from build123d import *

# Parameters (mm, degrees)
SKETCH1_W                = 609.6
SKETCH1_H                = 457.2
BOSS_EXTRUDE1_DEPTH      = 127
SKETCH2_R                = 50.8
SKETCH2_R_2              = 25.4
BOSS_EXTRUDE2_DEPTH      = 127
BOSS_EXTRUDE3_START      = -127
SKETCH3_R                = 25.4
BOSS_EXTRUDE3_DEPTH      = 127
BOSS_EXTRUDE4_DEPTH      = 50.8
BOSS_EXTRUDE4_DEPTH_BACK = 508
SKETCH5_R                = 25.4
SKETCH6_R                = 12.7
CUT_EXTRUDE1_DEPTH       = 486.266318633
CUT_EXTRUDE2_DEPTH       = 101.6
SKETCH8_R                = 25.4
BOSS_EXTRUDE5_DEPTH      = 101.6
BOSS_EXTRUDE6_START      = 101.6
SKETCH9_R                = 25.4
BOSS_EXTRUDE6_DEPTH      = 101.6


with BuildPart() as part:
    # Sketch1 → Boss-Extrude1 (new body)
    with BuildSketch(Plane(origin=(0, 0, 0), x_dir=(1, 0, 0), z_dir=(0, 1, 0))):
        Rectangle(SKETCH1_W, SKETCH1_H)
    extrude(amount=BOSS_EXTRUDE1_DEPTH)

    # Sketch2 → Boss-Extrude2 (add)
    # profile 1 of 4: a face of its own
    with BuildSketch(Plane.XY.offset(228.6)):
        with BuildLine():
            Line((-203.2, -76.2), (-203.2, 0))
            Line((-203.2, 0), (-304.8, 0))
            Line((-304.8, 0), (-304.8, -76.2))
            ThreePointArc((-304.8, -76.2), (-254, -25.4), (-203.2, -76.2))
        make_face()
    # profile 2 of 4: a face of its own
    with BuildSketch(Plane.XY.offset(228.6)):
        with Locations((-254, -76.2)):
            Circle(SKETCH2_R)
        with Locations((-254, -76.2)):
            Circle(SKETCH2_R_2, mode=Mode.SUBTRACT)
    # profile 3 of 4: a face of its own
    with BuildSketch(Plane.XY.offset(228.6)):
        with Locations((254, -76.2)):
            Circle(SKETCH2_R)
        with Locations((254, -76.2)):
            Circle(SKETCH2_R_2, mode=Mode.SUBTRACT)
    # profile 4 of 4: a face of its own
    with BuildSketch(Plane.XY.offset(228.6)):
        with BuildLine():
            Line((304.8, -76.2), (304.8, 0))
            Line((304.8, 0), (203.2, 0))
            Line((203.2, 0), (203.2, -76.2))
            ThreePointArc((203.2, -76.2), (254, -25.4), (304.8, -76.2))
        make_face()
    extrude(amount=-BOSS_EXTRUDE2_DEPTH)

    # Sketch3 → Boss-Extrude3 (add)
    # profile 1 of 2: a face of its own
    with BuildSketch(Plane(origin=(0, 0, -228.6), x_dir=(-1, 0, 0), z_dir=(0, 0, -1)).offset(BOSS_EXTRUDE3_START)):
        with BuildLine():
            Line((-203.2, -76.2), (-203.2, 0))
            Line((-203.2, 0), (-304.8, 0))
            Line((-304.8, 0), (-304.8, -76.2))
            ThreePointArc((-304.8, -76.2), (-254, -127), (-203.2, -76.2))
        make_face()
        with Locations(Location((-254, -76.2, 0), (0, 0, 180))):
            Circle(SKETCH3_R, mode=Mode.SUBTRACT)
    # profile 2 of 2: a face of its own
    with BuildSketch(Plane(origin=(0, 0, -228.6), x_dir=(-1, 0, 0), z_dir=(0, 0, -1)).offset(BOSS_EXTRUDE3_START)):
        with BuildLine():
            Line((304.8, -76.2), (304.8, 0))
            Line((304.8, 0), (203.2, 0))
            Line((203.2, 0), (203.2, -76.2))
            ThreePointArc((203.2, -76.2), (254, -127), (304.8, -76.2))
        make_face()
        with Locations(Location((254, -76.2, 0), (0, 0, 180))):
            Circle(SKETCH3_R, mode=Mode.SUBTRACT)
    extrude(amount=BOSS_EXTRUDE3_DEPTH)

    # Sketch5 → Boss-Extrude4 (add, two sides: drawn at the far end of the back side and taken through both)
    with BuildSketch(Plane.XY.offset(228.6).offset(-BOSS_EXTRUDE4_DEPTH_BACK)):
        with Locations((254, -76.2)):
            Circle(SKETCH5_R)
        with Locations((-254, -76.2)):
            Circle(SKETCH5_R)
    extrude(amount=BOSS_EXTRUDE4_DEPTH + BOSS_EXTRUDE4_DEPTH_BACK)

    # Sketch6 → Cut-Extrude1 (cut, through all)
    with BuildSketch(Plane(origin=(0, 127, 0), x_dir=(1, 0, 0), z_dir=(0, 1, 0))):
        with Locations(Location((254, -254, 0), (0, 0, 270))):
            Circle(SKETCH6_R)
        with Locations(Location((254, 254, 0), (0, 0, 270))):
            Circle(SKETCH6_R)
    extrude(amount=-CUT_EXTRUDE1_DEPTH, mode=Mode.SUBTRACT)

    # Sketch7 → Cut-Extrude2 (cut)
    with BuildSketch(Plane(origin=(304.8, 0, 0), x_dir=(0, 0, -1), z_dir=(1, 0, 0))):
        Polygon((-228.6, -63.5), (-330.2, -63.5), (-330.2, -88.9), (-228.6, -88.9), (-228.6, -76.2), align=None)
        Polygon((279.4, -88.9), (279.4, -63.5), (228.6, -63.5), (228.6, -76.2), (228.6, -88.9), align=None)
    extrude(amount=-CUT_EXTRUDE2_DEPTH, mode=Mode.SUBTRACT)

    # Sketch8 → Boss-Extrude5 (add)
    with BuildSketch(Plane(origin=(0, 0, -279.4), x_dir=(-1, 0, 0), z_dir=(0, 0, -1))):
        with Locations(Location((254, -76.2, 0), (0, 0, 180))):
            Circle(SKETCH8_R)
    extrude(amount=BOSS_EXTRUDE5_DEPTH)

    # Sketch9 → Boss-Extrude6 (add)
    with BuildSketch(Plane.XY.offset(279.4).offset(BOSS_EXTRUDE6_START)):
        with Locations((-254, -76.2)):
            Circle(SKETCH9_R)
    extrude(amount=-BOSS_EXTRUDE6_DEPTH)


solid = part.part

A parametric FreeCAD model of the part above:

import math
import FreeCAD as App
import Part
import Sketcher
Q = App.Units.Quantity

doc = App.newDocument("Part")
body = doc.addObject("PartDesign::Body", "Body")

# Sketch on XZ plane
sketch1 = body.newObject("Sketcher::SketchObject", "Sketch")
sketch1.AttachmentSupport = (doc.getObject("XZ_Plane"), [""])
sketch1.MapMode = "FlatFace"
sketch1.addGeometry([
    Part.LineSegment(App.Vector(-305, -229, 0), App.Vector(-305, 229, 0)),
    Part.LineSegment(App.Vector(-305, 229, 0), App.Vector(305, 229, 0)),
    Part.LineSegment(App.Vector(305, 229, 0), App.Vector(305, -229, 0)),
    Part.LineSegment(App.Vector(305, -229, 0), App.Vector(-305, -229, 0)),
], False)
sketch1.addConstraint([
    Sketcher.Constraint("Coincident", 0, 2, 1, 1),
    Sketcher.Constraint("Coincident", 1, 2, 2, 1),
    Sketcher.Constraint("Coincident", 2, 2, 3, 1),
    Sketcher.Constraint("Coincident", 3, 2, 0, 1),
    Sketcher.Constraint("Vertical", 0),
    Sketcher.Constraint("Horizontal", 1),
    Sketcher.Constraint("Vertical", 2),
    Sketcher.Constraint("Horizontal", 3),
    Sketcher.Constraint("Symmetric", 0, 2, 2, 2, -1, 1),
    Sketcher.Constraint("DistanceX", 1, 1, 1, 2, Q("24 in")),
    Sketcher.Constraint("DistanceY", 0, 1, 0, 2, Q("18 in")),
])
pad1 = body.newObject("PartDesign::Pad", "Pad")
pad1.Profile = sketch1
pad1.Length = Q("5 in")
pad1.Reversed = True

# Sketch on XY plane
sketch2 = body.newObject("Sketcher::SketchObject", "Sketch001")
sketch2.AttachmentSupport = (doc.getObject("XY_Plane"), [""])
sketch2.MapMode = "FlatFace"
sketch2.AttachmentOffset = App.Placement(App.Vector(0, 0, 9 * 25.4), App.Rotation())
sketch2.addGeometry([
    Part.LineSegment(App.Vector(-203, -76, 0), App.Vector(-203, 0, 0)),  # 0
    Part.LineSegment(App.Vector(-203, 0, 0), App.Vector(-305, 0, 0)),  # 1
    Part.LineSegment(App.Vector(-305, 0, 0), App.Vector(-305, -76, 0)),  # 2
    Part.ArcOfCircle(Part.Circle(App.Vector(-254, -76, 0), App.Vector(0, 0, 1), 51), math.radians(180), math.radians(360)),  # 3
    Part.Circle(App.Vector(-254, -76, 0), App.Vector(0, 0, 1), 25),  # 4
    Part.ArcOfCircle(Part.Circle(App.Vector(254, -76, 0), App.Vector(0, 0, 1), 51), math.radians(180), math.radians(360)),  # 5
    Part.LineSegment(App.Vector(305, -76, 0), App.Vector(305, 0, 0)),  # 6
    Part.LineSegment(App.Vector(305, 0, 0), App.Vector(203, 0, 0)),  # 7
    Part.LineSegment(App.Vector(203, 0, 0), App.Vector(203, -76, 0)),  # 8
    Part.Circle(App.Vector(254, -76, 0), App.Vector(0, 0, 1), 25),  # 9
], False)
sketch2.addConstraint([
    Sketcher.Constraint("Coincident", 0, 2, 1, 1),
    Sketcher.Constraint("Coincident", 1, 2, 2, 1),
    Sketcher.Constraint("Tangent", 2, 2, 3, 1),
    Sketcher.Constraint("Tangent", 3, 2, 0, 1),
    Sketcher.Constraint("Tangent", 5, 2, 6, 1),
    Sketcher.Constraint("Coincident", 6, 2, 7, 1),
    Sketcher.Constraint("Coincident", 7, 2, 8, 1),
    Sketcher.Constraint("Tangent", 8, 2, 5, 1),
    Sketcher.Constraint("Vertical", 0),
    Sketcher.Constraint("Horizontal", 1),
    Sketcher.Constraint("Vertical", 2),
    Sketcher.Constraint("Vertical", 6),
    Sketcher.Constraint("Horizontal", 7),
    Sketcher.Constraint("Vertical", 8),
    Sketcher.Constraint("Coincident", 4, 3, 3, 3),
    Sketcher.Constraint("Coincident", 9, 3, 5, 3),
    Sketcher.Constraint("Equal", 3, 5),
    Sketcher.Constraint("Equal", 4, 9),
    Sketcher.Constraint("Symmetric", 1, 2, 6, 2, -1, 1),
    Sketcher.Constraint("PointOnObject", 0, 2, -1),
    Sketcher.Constraint("Horizontal", 4, 3, 5, 3),
    Sketcher.Constraint("Diameter", 4, Q("2 in")),
    Sketcher.Constraint("Radius", 3, Q("2 in")),
    Sketcher.Constraint("DistanceY", 0, 1, 0, 2, Q("3 in")),
    Sketcher.Constraint("DistanceX", 3, 3, -1, 1, Q("10 in")),
])
pad2 = body.newObject("PartDesign::Pad", "Pad001")
pad2.Profile = sketch2
pad2.Length = Q("5 in")
pad2.Reversed = True

# Sketch on XY plane
sketch3 = body.newObject("Sketcher::SketchObject", "Sketch002")
sketch3.AttachmentSupport = (doc.getObject("XY_Plane"), [""])
sketch3.MapMode = "FlatFace"
sketch3.AttachmentOffset = App.Placement(App.Vector(0, 0, -4 * 25.4), App.Rotation())
sketch3.addGeometry([
    Part.LineSegment(App.Vector(203, -76, 0), App.Vector(203, 0, 0)),  # 0
    Part.LineSegment(App.Vector(203, 0, 0), App.Vector(305, 0, 0)),  # 1
    Part.LineSegment(App.Vector(305, 0, 0), App.Vector(305, -76, 0)),  # 2
    Part.ArcOfCircle(Part.Circle(App.Vector(254, -76, 0), App.Vector(0, 0, 1), 51), math.radians(180), math.radians(360)),  # 3
    Part.Circle(App.Vector(254, -76, 0), App.Vector(0, 0, 1), 25),  # 4
    Part.LineSegment(App.Vector(-305, -76, 0), App.Vector(-305, 0, 0)),  # 5
    Part.LineSegment(App.Vector(-305, 0, 0), App.Vector(-203, 0, 0)),  # 6
    Part.LineSegment(App.Vector(-203, 0, 0), App.Vector(-203, -76, 0)),  # 7
    Part.ArcOfCircle(Part.Circle(App.Vector(-254, -76, 0), App.Vector(0, 0, 1), 51), math.radians(180), math.radians(360)),  # 8
    Part.Circle(App.Vector(-254, -76, 0), App.Vector(0, 0, 1), 25),  # 9
], False)
sketch3.addConstraint([
    Sketcher.Constraint("Coincident", 0, 2, 1, 1),
    Sketcher.Constraint("Coincident", 1, 2, 2, 1),
    Sketcher.Constraint("Tangent", 2, 2, 3, 2),
    Sketcher.Constraint("Tangent", 3, 1, 0, 1),
    Sketcher.Constraint("Coincident", 5, 2, 6, 1),
    Sketcher.Constraint("Coincident", 6, 2, 7, 1),
    Sketcher.Constraint("Tangent", 7, 2, 8, 2),
    Sketcher.Constraint("Tangent", 8, 1, 5, 1),
    Sketcher.Constraint("Vertical", 0),
    Sketcher.Constraint("Horizontal", 1),
    Sketcher.Constraint("Vertical", 2),
    Sketcher.Constraint("Vertical", 5),
    Sketcher.Constraint("Horizontal", 6),
    Sketcher.Constraint("Vertical", 7),
    Sketcher.Constraint("Coincident", 4, 3, 3, 3),
    Sketcher.Constraint("Coincident", 9, 3, 8, 3),
    Sketcher.Constraint("Equal", 3, 8),
    Sketcher.Constraint("Equal", 4, 9),
    Sketcher.Constraint("Symmetric", 1, 2, 5, 2, -1, 1),
    Sketcher.Constraint("PointOnObject", 0, 2, -1),
    Sketcher.Constraint("Horizontal", 4, 3, 8, 3),
    Sketcher.Constraint("Diameter", 4, Q("2 in")),
    Sketcher.Constraint("Radius", 3, Q("2 in")),
    Sketcher.Constraint("DistanceY", 0, 1, 0, 2, Q("3 in")),
    Sketcher.Constraint("DistanceX", -1, 1, 3, 3, Q("10 in")),
])
pad3 = body.newObject("PartDesign::Pad", "Pad002")
pad3.Profile = sketch3
pad3.Length = Q("5 in")
pad3.Reversed = True

# Sketch on XY plane
sketch4 = body.newObject("Sketcher::SketchObject", "Sketch003")
sketch4.AttachmentSupport = (doc.getObject("XY_Plane"), [""])
sketch4.MapMode = "FlatFace"
sketch4.AttachmentOffset = App.Placement(App.Vector(0, 0, 9 * 25.4), App.Rotation())
sketch4.addGeometry([
    Part.Circle(App.Vector(254, -76, 0), App.Vector(0, 0, 1), 25),
    Part.Circle(App.Vector(-254, -76, 0), App.Vector(0, 0, 1), 25),
], False)
sketch4.addConstraint([
    Sketcher.Constraint("Equal", 0, 1),
    Sketcher.Constraint("Symmetric", 0, 3, 1, 3, -2),
    Sketcher.Constraint("Diameter", 0, Q("2 in")),
    Sketcher.Constraint("DistanceX", -1, 1, 0, 3, Q("10 in")),
    Sketcher.Constraint("DistanceY", 0, 3, -1, 1, Q("3 in")),
])
pad4 = body.newObject("PartDesign::Pad", "Pad003")
pad4.Profile = sketch4
pad4.Type = "TwoLengths"
pad4.Length = Q("2 in")
pad4.Length2 = Q("20 in")

# Sketch on XZ plane
sketch5 = body.newObject("Sketcher::SketchObject", "Sketch004")
sketch5.AttachmentSupport = (doc.getObject("XZ_Plane"), [""])
sketch5.MapMode = "FlatFace"
sketch5.AttachmentOffset = App.Placement(App.Vector(0, 0, -5 * 25.4), App.Rotation())
sketch5.addGeometry([
    Part.Circle(App.Vector(254, 254, 0), App.Vector(0, 0, 1), 13),
    Part.Circle(App.Vector(254, -254, 0), App.Vector(0, 0, 1), 13),
], False)
sketch5.addConstraint([
    Sketcher.Constraint("Equal", 0, 1),
    Sketcher.Constraint("Symmetric", 0, 3, 1, 3, -1),
    Sketcher.Constraint("Diameter", 0, Q("1 in")),
    Sketcher.Constraint("DistanceX", -1, 1, 0, 3, Q("10 in")),
    Sketcher.Constraint("DistanceY", -1, 1, 0, 3, Q("10 in")),
])
pocket1 = body.newObject("PartDesign::Pocket", "Pocket")
pocket1.Profile = sketch5
pocket1.Type = "ThroughAll"
pocket1.Reversed = True

# Sketch on YZ plane
sketch6 = body.newObject("Sketcher::SketchObject", "Sketch005")
sketch6.AttachmentSupport = (doc.getObject("YZ_Plane"), [""])
sketch6.MapMode = "FlatFace"
sketch6.AttachmentOffset = App.Placement(App.Vector(0, 0, 12 * 25.4), App.Rotation())
sketch6.addGeometry([
    Part.LineSegment(App.Vector(-64, 229, 0), App.Vector(-64, 330, 0)),  # 0
    Part.LineSegment(App.Vector(-64, 330, 0), App.Vector(-89, 330, 0)),  # 1
    Part.LineSegment(App.Vector(-89, 330, 0), App.Vector(-89, 229, 0)),  # 2
    Part.LineSegment(App.Vector(-89, 229, 0), App.Vector(-64, 229, 0)),  # 3
    Part.LineSegment(App.Vector(-89, -279, 0), App.Vector(-64, -279, 0)),  # 4
    Part.LineSegment(App.Vector(-64, -279, 0), App.Vector(-64, -229, 0)),  # 5
    Part.LineSegment(App.Vector(-64, -229, 0), App.Vector(-89, -229, 0)),  # 6
    Part.LineSegment(App.Vector(-89, -229, 0), App.Vector(-89, -279, 0)),  # 7
], False)
sketch6.addConstraint([
    Sketcher.Constraint("Coincident", 0, 2, 1, 1),
    Sketcher.Constraint("Coincident", 1, 2, 2, 1),
    Sketcher.Constraint("Coincident", 2, 2, 3, 1),
    Sketcher.Constraint("Coincident", 3, 2, 0, 1),
    Sketcher.Constraint("Coincident", 4, 2, 5, 1),
    Sketcher.Constraint("Coincident", 5, 2, 6, 1),
    Sketcher.Constraint("Coincident", 6, 2, 7, 1),
    Sketcher.Constraint("Coincident", 7, 2, 4, 1),
    Sketcher.Constraint("Vertical", 0),
    Sketcher.Constraint("Horizontal", 1),
    Sketcher.Constraint("Vertical", 2),
    Sketcher.Constraint("Horizontal", 3),
    Sketcher.Constraint("Horizontal", 4),
    Sketcher.Constraint("Vertical", 5),
    Sketcher.Constraint("Horizontal", 6),
    Sketcher.Constraint("Vertical", 7),
    Sketcher.Constraint("Symmetric", 3, 2, 5, 2, -1),
    Sketcher.Constraint("Vertical", 2, 2, 6, 2),
    Sketcher.Constraint("DistanceX", 1, 2, 1, 1, Q("1 in")),
    Sketcher.Constraint("DistanceY", 0, 1, 0, 2, Q("4 in")),
    Sketcher.Constraint("DistanceY", 5, 1, 5, 2, Q("2 in")),
    Sketcher.Constraint("DistanceY", -1, 1, 0, 2, Q("13 in")),
    Sketcher.Constraint("DistanceX", 0, 2, -1, 1, Q("2.5 in")),
])
pocket2 = body.newObject("PartDesign::Pocket", "Pocket001")
pocket2.Profile = sketch6
pocket2.Length = Q("4 in")

# Sketch on XY plane
sketch7 = body.newObject("Sketcher::SketchObject", "Sketch006")
sketch7.AttachmentSupport = (doc.getObject("XY_Plane"), [""])
sketch7.MapMode = "FlatFace"
sketch7.AttachmentOffset = App.Placement(App.Vector(0, 0, -11 * 25.4), App.Rotation())
sketch7.addGeometry(Part.Circle(App.Vector(-254, -76, 0), App.Vector(0, 0, 1), 25), False)
sketch7.addConstraint([
    Sketcher.Constraint("Diameter", 0, Q("2 in")),
    Sketcher.Constraint("DistanceX", 0, 3, -1, 1, Q("10 in")),
    Sketcher.Constraint("DistanceY", 0, 3, -1, 1, Q("3 in")),
])
pad5 = body.newObject("PartDesign::Pad", "Pad004")
pad5.Profile = sketch7
pad5.Length = Q("4 in")
pad5.Reversed = True

# Sketch on XY plane
sketch8 = body.newObject("Sketcher::SketchObject", "Sketch007")
sketch8.AttachmentSupport = (doc.getObject("XY_Plane"), [""])
sketch8.MapMode = "FlatFace"
sketch8.AttachmentOffset = App.Placement(App.Vector(0, 0, 15 * 25.4), App.Rotation())
sketch8.addGeometry(Part.Circle(App.Vector(-254, -76, 0), App.Vector(0, 0, 1), 25), False)
sketch8.addConstraint([
    Sketcher.Constraint("Diameter", 0, Q("2 in")),
    Sketcher.Constraint("DistanceX", 0, 3, -1, 1, Q("10 in")),
    Sketcher.Constraint("DistanceY", 0, 3, -1, 1, Q("3 in")),
])
pad6 = body.newObject("PartDesign::Pad", "Pad005")
pad6.Profile = sketch8
pad6.Length = Q("4 in")
pad6.Reversed = True

doc.recompute()
